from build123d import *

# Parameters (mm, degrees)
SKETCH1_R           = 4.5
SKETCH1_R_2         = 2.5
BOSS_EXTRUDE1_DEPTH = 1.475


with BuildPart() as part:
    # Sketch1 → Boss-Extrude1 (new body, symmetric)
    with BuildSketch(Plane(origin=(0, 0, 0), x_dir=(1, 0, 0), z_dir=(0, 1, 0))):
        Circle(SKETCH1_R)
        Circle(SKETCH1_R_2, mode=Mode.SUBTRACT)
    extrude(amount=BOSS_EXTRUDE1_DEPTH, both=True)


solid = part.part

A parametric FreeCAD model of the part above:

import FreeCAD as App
import Part
import Sketcher
from FreeCAD import Vector
Q = App.Units.Quantity

doc = App.newDocument("Part")
params = doc.addObject("Spreadsheet::Sheet", "Params")
for row, (alias, value) in enumerate([
    ("sketch1_diameter", "9 mm"),
    ("sketch1_diameter2", "5 mm"),
    ("pad1_length", "2.95 mm"),
], start=1):
    params.set(f"A{row}", alias)
    params.set(f"B{row}", "=" + value)
    params.setAlias(f"B{row}", alias)

body = doc.addObject("PartDesign::Body", "Body")

# Sketch on XZ plane
sketch1 = doc.addObject("Sketcher::SketchObject", "Sketch")
body.addObject(sketch1)
sketch1.AttachmentSupport = (doc.XZ_Plane, [""])
sketch1.MapMode = "FlatFace"
sketch1.addGeometry([
    Part.Circle(Vector(0, 0, 0), Vector(0, 0, 1), 4.5),
    Part.Circle(Vector(0, 0, 0), Vector(0, 0, 1), 2.5),
], False)
sketch1.addConstraint([
    Sketcher.Constraint("Coincident", 0, 3, -1, 1),
    Sketcher.Constraint("Coincident", 1, 3, -1, 1),
    Sketcher.Constraint("Diameter", 0, Q("9 mm")),
    Sketcher.Constraint("Diameter", 1, Q("5 mm")),
])
sketch1.setExpression("Constraints[2]", "Params.sketch1_diameter")
sketch1.setExpression("Constraints[3]", "Params.sketch1_diameter2")
pad1 = doc.addObject("PartDesign::Pad", "Pad")
body.addObject(pad1)
pad1.Profile = sketch1
pad1.setExpression("Length", "Params.pad1_length")
pad1.Midplane = True

doc.recompute()
